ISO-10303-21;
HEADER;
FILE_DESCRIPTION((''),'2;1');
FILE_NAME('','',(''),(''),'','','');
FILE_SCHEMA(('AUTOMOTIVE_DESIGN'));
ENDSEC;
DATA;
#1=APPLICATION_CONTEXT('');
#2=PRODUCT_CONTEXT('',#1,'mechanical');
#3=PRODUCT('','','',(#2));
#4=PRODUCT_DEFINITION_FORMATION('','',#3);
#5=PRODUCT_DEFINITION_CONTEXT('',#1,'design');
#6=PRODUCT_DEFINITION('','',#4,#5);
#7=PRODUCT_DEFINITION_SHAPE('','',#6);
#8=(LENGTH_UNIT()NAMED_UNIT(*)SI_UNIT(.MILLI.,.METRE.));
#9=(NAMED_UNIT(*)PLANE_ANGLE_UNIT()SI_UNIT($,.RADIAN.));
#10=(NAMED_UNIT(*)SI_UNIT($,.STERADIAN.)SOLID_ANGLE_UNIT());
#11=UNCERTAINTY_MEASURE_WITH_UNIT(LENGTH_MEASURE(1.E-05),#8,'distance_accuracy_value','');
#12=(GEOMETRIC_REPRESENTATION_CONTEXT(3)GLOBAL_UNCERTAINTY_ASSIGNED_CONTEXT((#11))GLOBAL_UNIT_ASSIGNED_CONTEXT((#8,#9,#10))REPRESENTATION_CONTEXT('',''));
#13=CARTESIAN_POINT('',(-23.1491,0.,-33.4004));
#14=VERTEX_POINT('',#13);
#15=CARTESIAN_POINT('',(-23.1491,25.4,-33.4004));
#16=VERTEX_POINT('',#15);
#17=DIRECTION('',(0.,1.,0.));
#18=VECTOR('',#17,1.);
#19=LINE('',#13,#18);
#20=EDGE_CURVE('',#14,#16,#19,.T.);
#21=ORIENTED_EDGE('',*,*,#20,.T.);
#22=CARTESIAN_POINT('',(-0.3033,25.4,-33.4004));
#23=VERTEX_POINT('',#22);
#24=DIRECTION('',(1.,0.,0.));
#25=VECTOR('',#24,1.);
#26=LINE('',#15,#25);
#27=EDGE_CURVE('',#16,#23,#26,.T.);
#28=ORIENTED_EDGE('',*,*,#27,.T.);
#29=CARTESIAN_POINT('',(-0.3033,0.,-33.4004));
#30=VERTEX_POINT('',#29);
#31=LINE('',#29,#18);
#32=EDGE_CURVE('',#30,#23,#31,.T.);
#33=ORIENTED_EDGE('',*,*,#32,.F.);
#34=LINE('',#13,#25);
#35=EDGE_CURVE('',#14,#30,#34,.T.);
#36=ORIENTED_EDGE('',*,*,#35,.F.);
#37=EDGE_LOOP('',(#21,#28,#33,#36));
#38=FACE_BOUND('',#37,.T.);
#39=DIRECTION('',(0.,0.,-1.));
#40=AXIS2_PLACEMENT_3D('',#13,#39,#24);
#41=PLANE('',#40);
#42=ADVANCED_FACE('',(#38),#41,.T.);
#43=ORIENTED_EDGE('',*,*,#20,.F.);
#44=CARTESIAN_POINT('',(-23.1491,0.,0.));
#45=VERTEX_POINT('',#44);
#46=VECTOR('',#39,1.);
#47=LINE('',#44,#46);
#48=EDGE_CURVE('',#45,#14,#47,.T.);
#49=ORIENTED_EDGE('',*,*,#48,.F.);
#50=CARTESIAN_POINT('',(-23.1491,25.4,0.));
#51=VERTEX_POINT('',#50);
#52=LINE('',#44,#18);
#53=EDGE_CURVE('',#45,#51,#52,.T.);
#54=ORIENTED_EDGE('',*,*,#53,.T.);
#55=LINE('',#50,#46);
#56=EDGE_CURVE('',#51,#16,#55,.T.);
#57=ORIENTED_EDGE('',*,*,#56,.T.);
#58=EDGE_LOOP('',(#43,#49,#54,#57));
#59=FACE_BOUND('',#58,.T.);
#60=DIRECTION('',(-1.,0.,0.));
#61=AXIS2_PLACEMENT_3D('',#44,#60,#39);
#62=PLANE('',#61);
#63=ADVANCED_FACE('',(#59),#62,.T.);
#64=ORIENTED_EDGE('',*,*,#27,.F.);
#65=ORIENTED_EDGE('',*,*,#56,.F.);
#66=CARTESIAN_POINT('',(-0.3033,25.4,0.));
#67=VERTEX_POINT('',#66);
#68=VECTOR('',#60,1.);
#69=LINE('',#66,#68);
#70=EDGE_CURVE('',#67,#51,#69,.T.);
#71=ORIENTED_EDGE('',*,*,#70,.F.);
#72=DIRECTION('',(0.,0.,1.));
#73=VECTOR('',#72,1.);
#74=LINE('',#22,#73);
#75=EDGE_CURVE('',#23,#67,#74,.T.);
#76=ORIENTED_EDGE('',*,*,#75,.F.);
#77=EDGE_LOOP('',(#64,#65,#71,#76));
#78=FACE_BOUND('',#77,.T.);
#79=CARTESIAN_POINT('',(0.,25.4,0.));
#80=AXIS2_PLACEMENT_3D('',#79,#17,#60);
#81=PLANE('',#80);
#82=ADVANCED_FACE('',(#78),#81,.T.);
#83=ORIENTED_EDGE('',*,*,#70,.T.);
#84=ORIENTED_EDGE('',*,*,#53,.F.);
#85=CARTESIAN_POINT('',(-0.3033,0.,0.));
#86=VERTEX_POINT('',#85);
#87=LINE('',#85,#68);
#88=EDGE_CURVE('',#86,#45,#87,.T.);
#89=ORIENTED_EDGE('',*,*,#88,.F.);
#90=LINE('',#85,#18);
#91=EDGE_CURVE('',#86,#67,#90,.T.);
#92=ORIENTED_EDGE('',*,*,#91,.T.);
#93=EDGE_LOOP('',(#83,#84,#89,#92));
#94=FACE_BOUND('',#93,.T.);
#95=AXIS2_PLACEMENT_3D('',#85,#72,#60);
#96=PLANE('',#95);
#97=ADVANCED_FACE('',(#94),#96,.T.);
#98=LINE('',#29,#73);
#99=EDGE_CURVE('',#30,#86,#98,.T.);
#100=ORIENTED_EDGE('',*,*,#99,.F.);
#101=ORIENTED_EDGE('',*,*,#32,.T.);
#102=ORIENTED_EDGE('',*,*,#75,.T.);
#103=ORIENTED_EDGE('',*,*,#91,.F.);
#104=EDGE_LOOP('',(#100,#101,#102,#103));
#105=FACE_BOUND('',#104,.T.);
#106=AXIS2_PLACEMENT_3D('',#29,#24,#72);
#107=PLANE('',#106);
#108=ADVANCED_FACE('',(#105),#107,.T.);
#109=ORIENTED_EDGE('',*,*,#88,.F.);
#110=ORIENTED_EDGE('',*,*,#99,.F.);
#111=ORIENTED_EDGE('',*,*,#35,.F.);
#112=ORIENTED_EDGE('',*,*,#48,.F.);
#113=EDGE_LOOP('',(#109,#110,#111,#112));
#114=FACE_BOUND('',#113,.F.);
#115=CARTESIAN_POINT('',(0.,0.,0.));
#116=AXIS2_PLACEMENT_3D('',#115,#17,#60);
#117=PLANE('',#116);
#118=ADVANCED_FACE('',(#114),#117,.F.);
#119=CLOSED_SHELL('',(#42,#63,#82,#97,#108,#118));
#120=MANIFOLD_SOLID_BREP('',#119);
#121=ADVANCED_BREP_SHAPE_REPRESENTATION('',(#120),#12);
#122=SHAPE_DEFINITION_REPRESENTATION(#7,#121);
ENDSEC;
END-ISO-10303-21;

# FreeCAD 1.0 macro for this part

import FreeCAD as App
import Part
import Sketcher

doc = App.newDocument("Part")
params = doc.addObject("Spreadsheet::Sheet", "Params")
for row, (alias, value) in enumerate([
    ("pad1_length", "1 in"),
], start=1):
    params.set(f"A{row}", alias)
    params.set(f"B{row}", "=" + value)
    params.setAlias(f"B{row}", alias)

body = doc.addObject("PartDesign::Body", "Body")

# Sketch on XZ plane
sketch1 = body.newObject("Sketcher::SketchObject", "Sketch")
sketch1.AttachmentSupport = (doc.getObject("XZ_Plane"), [""])
sketch1.MapMode = "FlatFace"
sketch1.addGeometry([
    Part.LineSegment(App.Vector(-23, 0, 0), App.Vector(0, 0, 0)),
    Part.LineSegment(App.Vector(0, 0, 0), App.Vector(0, -33, 0)),
    Part.LineSegment(App.Vector(0, -33, 0), App.Vector(-23, -33, 0)),
    Part.LineSegment(App.Vector(-23, -33, 0), App.Vector(-23, 0, 0)),
], False)
sketch1.addConstraint([
    Sketcher.Constraint("Coincident", 0, 2, 1, 1),
    Sketcher.Constraint("Coincident", 1, 2, 2, 1),
    Sketcher.Constraint("Coincident", 2, 2, 3, 1),
    Sketcher.Constraint("Coincident", 3, 2, 0, 1),
    Sketcher.Constraint("Horizontal", 0),
    Sketcher.Constraint("Vertical", 1),
    Sketcher.Constraint("Horizontal", 2),
    Sketcher.Constraint("Vertical", 3),
    Sketcher.Constraint("PointOnObject", 0, 2, -1),
    Sketcher.Constraint("DistanceX", 0, 1, 0, 2, 22.8458),
    Sketcher.Constraint("DistanceY", 1, 2, 1, 1, 33.4004),
    Sketcher.Constraint("DistanceX", 0, 2, -1, 1, 0.3033),
])
pad1 = body.newObject("PartDesign::Pad", "Pad")
pad1.Profile = sketch1
pad1.setExpression("Length", "Params.pad1_length")
pad1.Reversed = True

doc.recompute()
